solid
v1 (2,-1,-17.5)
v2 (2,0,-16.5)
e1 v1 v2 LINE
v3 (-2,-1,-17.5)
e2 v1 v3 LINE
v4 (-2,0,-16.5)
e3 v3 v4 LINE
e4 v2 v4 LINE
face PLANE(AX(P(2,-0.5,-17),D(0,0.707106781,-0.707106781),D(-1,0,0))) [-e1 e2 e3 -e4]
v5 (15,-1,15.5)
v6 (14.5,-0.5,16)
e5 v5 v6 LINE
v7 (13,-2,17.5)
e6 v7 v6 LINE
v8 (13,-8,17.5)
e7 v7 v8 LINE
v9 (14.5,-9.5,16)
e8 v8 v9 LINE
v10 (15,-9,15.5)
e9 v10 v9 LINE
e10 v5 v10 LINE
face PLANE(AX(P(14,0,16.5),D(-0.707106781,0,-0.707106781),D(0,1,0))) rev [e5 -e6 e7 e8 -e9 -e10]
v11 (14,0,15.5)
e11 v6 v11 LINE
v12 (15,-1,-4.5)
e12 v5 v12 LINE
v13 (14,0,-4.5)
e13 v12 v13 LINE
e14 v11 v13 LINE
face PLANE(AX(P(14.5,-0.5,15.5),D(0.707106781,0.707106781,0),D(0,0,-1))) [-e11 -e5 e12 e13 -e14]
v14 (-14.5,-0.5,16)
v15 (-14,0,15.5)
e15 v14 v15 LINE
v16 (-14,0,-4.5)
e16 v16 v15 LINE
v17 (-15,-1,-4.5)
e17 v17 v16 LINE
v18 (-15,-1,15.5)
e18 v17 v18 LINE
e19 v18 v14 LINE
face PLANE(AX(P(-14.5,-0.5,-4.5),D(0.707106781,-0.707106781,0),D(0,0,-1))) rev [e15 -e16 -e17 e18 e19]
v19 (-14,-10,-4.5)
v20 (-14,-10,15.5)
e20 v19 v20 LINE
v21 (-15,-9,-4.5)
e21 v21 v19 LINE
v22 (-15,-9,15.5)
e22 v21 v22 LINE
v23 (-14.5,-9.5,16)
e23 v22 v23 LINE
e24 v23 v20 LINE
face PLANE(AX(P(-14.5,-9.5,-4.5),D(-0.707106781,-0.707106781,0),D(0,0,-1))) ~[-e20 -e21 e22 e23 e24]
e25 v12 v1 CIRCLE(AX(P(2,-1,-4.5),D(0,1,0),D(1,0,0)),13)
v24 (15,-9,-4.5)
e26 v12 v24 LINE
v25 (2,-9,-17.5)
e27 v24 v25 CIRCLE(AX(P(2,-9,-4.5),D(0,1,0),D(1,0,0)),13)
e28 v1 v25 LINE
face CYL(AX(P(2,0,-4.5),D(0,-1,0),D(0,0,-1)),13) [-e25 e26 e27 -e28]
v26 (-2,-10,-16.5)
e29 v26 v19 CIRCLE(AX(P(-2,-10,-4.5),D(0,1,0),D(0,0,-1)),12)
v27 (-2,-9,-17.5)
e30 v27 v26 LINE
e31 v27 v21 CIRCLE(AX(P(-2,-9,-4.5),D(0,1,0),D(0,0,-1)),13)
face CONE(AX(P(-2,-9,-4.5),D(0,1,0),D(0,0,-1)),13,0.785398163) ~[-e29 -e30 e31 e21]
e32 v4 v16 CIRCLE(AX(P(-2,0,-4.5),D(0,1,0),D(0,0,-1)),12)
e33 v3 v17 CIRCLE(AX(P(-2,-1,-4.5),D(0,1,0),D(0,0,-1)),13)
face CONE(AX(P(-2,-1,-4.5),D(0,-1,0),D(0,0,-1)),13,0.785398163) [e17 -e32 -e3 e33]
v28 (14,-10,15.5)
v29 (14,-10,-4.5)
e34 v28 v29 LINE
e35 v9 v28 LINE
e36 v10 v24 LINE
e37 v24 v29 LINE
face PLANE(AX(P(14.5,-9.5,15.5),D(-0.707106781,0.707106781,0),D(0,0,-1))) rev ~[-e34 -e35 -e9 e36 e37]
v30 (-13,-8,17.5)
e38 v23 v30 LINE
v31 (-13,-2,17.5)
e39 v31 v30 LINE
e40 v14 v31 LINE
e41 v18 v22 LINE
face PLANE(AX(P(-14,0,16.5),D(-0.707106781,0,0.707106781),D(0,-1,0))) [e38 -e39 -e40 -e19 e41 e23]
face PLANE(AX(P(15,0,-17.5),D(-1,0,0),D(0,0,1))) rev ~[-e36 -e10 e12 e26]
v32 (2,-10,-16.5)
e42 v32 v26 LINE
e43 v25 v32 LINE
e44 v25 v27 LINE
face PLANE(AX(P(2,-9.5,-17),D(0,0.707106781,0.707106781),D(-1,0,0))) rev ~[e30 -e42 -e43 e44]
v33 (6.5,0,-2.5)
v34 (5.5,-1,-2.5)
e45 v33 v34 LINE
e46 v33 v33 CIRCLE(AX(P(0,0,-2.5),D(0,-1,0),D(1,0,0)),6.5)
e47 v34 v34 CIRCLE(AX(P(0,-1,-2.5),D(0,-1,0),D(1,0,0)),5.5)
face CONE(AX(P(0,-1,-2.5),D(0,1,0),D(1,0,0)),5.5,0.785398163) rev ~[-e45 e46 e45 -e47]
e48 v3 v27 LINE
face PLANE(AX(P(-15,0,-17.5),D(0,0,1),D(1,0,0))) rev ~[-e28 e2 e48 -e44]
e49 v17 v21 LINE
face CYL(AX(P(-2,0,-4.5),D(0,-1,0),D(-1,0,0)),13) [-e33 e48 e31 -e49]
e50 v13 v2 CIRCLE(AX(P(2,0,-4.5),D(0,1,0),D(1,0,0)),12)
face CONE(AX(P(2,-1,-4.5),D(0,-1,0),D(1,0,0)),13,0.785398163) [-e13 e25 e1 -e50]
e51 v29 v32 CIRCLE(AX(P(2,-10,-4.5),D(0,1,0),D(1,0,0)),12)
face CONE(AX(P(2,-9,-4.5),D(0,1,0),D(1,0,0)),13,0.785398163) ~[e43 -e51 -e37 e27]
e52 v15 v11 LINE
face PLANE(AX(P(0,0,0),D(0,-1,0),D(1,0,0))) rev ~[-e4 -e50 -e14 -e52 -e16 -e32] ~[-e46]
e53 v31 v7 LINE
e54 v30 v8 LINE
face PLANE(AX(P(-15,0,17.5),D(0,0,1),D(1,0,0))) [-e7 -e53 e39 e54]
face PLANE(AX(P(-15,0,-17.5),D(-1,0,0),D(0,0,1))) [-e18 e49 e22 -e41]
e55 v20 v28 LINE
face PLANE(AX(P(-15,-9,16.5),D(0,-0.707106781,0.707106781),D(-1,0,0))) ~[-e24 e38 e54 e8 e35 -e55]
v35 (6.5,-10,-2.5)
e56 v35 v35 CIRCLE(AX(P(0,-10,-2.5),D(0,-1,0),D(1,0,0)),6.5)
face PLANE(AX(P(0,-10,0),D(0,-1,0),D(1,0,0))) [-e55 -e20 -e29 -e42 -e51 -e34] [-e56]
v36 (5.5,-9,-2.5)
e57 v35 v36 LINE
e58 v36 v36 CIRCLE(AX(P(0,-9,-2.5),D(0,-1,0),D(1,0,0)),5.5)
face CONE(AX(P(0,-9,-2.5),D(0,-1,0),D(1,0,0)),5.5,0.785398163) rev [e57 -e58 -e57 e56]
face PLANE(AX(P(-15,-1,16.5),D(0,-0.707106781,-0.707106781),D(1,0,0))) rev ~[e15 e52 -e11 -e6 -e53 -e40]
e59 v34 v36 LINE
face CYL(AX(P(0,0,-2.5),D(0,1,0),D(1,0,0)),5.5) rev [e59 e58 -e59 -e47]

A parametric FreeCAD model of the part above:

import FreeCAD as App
import Part
import Sketcher


def edges_at(feature, points):
    """Names of the edges that pass closest to the given points."""
    edges = feature.Shape.Edges
    near = lambda p: min(range(len(edges)), key=lambda i: edges[i].distToShape(Part.Vertex(*p))[0])
    return sorted({f"Edge{near(p) + 1}" for p in points})

doc = App.newDocument("Part")
body = doc.addObject("PartDesign::Body", "Body")

sketch1 = body.newObject("Sketcher::SketchObject", "Sketch")
sketch1.AttachmentSupport = (doc.getObject("XZ_Plane"), [""])
sketch1.MapMode = "FlatFace"
sketch1.addGeometry([
    Part.LineSegment(App.Vector(-15, 17.5, 0), App.Vector(-15, -17.5, 0)),
    Part.LineSegment(App.Vector(-15, -17.5, 0), App.Vector(15, -17.5, 0)),
    Part.LineSegment(App.Vector(15, -17.5, 0), App.Vector(15, 17.5, 0)),
    Part.LineSegment(App.Vector(15, 17.5, 0), App.Vector(-15, 17.5, 0)),
    Part.Circle(App.Vector(0, -2.5, 0), App.Vector(0, 0, 1), 5.5),
], False)
sketch1.addConstraint([
    Sketcher.Constraint("Coincident", 0, 2, 1, 1),
    Sketcher.Constraint("Coincident", 1, 2, 2, 1),
    Sketcher.Constraint("Coincident", 2, 2, 3, 1),
    Sketcher.Constraint("Coincident", 3, 2, 0, 1),
    Sketcher.Constraint("Vertical", 0),
    Sketcher.Constraint("Horizontal", 1),
    Sketcher.Constraint("Vertical", 2),
    Sketcher.Constraint("Horizontal", 3),
    Sketcher.Constraint("Symmetric", 0, 2, 2, 2, -1, 1),
    Sketcher.Constraint("PointOnObject", 4, 3, -2),
    Sketcher.Constraint("Diameter", 4, 11.0),
    Sketcher.Constraint("DistanceX", 1, 1, 1, 2, 30.0),
    Sketcher.Constraint("DistanceY", 0, 2, 0, 1, 35.0),
    Sketcher.Constraint("DistanceY", 0, 2, 4, 3, 15.0),
])
pad1 = body.newObject("PartDesign::Pad", "Pad")
pad1.Profile = sketch1
pad1.Length = 10
doc.recompute()

fillet = body.newObject("PartDesign::Fillet", "Fillet")
fillet.Base = (pad1, edges_at(pad1, [(15, -5, -17.5), (-15, -5, -17.5)]))
fillet.Radius = 13
doc.recompute()

chamfer = body.newObject("PartDesign::Chamfer", "Chamfer")
chamfer.Base = (fillet, edges_at(fillet, [
    (15, -5, 17.5),
    (-15, -5, 17.5),
    (0, 0, 17.5),
    (0, -10, 17.5),
]))
chamfer.Size = 2
doc.recompute()

chamfer2 = body.newObject("PartDesign::Chamfer", "Chamfer001")
chamfer2.Base = (chamfer, edges_at(chamfer, [(-15, -10, 5.5), (-15, 0, 5.5)]))
chamfer2.Size = 1
doc.recompute()

chamfer3 = body.newObject("PartDesign::Chamfer", "Chamfer002")
chamfer3.Base = (chamfer2, edges_at(chamfer2, [(5.5, -5, -2.5), (-5.5, 0, -2.5), (-5.5, -10, -2.5)]))
chamfer3.Size = 1

doc.recompute()
